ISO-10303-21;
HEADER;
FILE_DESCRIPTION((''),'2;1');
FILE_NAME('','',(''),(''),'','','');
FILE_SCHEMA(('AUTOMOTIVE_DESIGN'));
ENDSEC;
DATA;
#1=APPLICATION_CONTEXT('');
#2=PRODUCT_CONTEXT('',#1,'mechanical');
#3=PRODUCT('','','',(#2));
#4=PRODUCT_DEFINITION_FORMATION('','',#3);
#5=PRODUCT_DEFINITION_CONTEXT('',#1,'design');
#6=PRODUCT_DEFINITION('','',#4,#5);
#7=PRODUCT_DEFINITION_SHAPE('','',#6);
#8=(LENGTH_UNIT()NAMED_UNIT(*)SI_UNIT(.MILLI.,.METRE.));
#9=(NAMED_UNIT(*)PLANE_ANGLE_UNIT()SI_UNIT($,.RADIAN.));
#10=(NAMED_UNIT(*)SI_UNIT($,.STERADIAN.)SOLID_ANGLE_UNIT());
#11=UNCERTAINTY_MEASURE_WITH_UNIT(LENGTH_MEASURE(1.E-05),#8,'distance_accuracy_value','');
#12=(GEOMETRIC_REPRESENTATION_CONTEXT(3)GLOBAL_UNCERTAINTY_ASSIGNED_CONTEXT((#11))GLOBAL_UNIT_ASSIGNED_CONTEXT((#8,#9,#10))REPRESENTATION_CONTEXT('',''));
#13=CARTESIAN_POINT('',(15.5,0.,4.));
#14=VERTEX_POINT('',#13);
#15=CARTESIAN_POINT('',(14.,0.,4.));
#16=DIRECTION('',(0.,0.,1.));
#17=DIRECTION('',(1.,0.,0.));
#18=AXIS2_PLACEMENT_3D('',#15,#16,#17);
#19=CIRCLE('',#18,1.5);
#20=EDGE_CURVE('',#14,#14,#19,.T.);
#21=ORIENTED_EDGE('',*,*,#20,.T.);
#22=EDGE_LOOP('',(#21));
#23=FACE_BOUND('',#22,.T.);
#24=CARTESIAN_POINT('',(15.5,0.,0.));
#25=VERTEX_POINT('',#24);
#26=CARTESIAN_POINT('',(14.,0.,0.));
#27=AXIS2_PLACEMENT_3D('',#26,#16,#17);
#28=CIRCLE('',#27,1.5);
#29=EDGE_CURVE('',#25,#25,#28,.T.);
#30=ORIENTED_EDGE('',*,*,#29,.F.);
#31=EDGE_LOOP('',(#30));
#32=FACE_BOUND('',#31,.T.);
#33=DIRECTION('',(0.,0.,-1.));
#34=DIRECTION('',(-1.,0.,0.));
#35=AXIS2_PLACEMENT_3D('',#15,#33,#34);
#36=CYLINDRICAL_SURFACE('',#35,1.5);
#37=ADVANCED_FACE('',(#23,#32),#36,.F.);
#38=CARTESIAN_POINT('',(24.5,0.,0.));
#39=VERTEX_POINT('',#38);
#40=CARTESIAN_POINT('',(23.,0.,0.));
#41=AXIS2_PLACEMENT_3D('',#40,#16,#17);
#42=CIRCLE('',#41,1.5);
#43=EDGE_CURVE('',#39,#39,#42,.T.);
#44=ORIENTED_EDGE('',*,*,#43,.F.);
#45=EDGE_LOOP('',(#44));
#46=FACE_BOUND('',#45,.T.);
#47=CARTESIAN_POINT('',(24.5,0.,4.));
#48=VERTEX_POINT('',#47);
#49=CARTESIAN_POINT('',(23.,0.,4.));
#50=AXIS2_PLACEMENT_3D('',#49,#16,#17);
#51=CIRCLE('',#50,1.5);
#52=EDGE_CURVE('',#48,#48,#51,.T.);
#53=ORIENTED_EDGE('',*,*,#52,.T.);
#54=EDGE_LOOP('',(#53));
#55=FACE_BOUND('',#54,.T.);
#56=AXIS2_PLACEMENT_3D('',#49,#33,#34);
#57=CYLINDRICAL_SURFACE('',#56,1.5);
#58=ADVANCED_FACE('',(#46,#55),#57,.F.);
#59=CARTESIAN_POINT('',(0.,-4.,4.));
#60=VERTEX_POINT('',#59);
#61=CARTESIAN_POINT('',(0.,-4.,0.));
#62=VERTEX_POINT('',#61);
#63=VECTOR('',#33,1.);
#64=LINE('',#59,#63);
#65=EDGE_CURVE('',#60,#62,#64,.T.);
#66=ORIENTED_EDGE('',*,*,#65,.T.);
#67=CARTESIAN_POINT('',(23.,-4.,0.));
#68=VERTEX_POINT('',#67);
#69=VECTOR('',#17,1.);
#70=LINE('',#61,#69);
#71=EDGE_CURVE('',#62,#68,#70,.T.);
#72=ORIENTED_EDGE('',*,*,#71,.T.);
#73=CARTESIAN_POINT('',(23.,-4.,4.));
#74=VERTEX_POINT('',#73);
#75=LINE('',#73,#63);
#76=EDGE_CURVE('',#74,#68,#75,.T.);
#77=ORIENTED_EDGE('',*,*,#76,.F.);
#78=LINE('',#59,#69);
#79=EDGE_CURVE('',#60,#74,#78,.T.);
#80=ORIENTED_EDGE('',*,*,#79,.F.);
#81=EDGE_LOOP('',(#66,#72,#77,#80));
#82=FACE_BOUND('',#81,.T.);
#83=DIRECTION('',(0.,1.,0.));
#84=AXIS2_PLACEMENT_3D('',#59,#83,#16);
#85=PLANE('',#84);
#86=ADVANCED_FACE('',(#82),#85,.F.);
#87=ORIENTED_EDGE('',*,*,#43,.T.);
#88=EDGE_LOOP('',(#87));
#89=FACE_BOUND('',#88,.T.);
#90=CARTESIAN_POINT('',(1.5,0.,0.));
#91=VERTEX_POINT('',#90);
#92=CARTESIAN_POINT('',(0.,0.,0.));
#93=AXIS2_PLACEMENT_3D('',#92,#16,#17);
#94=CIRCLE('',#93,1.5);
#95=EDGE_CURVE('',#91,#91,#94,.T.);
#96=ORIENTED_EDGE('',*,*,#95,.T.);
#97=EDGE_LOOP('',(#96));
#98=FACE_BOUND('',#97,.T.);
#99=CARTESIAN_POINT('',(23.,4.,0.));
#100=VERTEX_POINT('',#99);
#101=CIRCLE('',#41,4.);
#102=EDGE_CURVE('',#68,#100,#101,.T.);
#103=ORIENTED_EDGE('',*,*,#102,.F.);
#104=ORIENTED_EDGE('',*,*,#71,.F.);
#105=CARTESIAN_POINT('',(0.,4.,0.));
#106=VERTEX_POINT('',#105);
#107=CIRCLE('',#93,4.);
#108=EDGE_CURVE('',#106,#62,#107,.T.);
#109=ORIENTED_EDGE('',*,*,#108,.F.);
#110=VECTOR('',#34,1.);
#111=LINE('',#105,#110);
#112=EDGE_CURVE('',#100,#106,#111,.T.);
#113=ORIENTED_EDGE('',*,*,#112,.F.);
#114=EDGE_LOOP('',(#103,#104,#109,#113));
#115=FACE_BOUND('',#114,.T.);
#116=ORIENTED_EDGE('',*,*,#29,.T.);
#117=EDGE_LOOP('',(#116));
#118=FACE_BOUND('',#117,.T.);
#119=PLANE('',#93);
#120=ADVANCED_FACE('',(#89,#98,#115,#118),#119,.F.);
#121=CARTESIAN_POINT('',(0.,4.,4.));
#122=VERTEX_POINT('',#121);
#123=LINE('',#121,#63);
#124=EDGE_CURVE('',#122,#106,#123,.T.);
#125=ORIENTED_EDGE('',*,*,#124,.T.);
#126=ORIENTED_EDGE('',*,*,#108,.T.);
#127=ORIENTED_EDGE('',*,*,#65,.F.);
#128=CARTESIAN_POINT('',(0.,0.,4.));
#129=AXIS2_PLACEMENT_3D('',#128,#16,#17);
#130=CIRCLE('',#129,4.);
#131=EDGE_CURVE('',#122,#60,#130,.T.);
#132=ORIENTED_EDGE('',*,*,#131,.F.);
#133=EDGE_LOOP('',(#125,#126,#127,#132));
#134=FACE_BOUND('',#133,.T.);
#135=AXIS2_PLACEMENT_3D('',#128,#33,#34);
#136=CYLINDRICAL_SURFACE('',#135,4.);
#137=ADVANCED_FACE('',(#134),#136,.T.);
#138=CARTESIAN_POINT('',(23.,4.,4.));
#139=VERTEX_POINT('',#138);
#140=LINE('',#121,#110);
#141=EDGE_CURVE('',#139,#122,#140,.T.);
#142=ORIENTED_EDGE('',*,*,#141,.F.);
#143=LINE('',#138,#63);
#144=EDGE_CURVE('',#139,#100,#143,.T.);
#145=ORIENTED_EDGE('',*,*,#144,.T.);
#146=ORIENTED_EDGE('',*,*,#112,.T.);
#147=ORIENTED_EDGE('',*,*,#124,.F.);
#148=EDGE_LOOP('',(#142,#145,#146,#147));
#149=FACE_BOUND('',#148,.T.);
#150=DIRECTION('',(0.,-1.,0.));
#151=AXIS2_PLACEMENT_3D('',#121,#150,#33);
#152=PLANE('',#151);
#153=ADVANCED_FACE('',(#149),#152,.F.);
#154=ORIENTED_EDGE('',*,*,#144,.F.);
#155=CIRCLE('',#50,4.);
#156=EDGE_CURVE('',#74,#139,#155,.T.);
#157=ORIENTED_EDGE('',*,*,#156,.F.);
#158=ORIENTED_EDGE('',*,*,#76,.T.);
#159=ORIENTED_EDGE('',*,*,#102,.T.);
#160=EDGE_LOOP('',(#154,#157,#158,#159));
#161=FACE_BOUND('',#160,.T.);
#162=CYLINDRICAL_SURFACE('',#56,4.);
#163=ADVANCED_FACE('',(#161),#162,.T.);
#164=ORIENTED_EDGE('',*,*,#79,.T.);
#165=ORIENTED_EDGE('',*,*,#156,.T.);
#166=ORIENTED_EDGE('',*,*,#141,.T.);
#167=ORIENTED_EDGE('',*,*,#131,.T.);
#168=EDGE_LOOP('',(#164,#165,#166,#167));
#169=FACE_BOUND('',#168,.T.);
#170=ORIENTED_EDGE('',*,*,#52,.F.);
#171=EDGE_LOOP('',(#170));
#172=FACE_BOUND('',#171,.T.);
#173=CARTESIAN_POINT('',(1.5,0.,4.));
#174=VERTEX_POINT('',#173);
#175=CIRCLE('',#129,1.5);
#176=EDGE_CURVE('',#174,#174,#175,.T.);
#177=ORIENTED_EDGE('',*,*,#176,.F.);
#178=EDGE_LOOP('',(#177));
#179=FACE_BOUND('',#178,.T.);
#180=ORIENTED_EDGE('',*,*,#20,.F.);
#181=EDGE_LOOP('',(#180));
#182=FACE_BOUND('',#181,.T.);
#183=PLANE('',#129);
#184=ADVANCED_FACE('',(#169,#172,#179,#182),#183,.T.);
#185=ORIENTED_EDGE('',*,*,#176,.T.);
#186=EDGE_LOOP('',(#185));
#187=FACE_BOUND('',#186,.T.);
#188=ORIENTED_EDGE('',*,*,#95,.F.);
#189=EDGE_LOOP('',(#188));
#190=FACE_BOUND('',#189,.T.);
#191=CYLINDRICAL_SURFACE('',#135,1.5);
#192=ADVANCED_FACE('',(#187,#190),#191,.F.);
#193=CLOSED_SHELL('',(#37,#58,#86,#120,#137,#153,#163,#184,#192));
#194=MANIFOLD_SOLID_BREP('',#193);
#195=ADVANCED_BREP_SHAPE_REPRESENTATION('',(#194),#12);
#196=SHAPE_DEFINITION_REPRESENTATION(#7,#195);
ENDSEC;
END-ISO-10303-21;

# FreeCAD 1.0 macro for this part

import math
import FreeCAD as App
import Part
import Sketcher

doc = App.newDocument("Part")
params = doc.addObject("Spreadsheet::Sheet", "Params")
for row, (alias, value) in enumerate([
    ("sketch1_diameter", "3 mm"),
    ("sketch1_radius", "4 mm"),
    ("sketch1_width", "23 mm"),
    ("pad1_length", "4 mm"),
], start=1):
    params.set(f"A{row}", alias)
    params.set(f"B{row}", "=" + value)
    params.setAlias(f"B{row}", alias)

body = doc.addObject("PartDesign::Body", "Body")

# Sketch on XY plane
sketch1 = body.newObject("Sketcher::SketchObject", "Sketch")
sketch1.AttachmentSupport = (doc.getObject("XY_Plane"), [""])
sketch1.MapMode = "FlatFace"
sketch1.addGeometry([
    Part.LineSegment(App.Vector(23, 4, 0), App.Vector(0, 4, 0)),  # 0
    Part.ArcOfCircle(Part.Circle(App.Vector(0, 0, 0), App.Vector(0, 0, 1), 4), math.radians(90), math.radians(270)),  # 1
    Part.LineSegment(App.Vector(0, -4, 0), App.Vector(23, -4, 0)),  # 2
    Part.ArcOfCircle(Part.Circle(App.Vector(23, 0, 0), App.Vector(0, 0, 1), 4), math.radians(-90), math.radians(90)),  # 3
    Part.Circle(App.Vector(23, 0, 0), App.Vector(0, 0, 1), 1.5),  # 4
    Part.Circle(App.Vector(14, 0, 0), App.Vector(0, 0, 1), 1.5),  # 5
    Part.Circle(App.Vector(0, 0, 0), App.Vector(0, 0, 1), 1.5),  # 6
], False)
sketch1.addConstraint([
    Sketcher.Constraint("Tangent", 0, 2, 1, 1),
    Sketcher.Constraint("Tangent", 1, 2, 2, 1),
    Sketcher.Constraint("Tangent", 2, 2, 3, 1),
    Sketcher.Constraint("Tangent", 3, 2, 0, 1),
    Sketcher.Constraint("Horizontal", 0),
    Sketcher.Constraint("Horizontal", 2),
    Sketcher.Constraint("Coincident", 1, 3, -1, 1),
    Sketcher.Constraint("Coincident", 6, 3, -1, 1),
    Sketcher.Constraint("Coincident", 4, 3, 3, 3),
    Sketcher.Constraint("Equal", 4, 5),
    Sketcher.Constraint("Equal", 5, 6),
    Sketcher.Constraint("PointOnObject", 5, 3, -1),
    Sketcher.Constraint("Diameter", 4, 3.0),
    Sketcher.Constraint("Radius", 1, 4.0),
    Sketcher.Constraint("DistanceX", 0, 2, 0, 1, 23.0),
    Sketcher.Constraint("DistanceX", -1, 1, 5, 3, 14.0),
])
sketch1.setExpression("Constraints[12]", "Params.sketch1_diameter")
sketch1.setExpression("Constraints[13]", "Params.sketch1_radius")
sketch1.setExpression("Constraints[14]", "Params.sketch1_width")
pad1 = body.newObject("PartDesign::Pad", "Pad")
pad1.Profile = sketch1
pad1.setExpression("Length", "Params.pad1_length")

doc.recompute()
